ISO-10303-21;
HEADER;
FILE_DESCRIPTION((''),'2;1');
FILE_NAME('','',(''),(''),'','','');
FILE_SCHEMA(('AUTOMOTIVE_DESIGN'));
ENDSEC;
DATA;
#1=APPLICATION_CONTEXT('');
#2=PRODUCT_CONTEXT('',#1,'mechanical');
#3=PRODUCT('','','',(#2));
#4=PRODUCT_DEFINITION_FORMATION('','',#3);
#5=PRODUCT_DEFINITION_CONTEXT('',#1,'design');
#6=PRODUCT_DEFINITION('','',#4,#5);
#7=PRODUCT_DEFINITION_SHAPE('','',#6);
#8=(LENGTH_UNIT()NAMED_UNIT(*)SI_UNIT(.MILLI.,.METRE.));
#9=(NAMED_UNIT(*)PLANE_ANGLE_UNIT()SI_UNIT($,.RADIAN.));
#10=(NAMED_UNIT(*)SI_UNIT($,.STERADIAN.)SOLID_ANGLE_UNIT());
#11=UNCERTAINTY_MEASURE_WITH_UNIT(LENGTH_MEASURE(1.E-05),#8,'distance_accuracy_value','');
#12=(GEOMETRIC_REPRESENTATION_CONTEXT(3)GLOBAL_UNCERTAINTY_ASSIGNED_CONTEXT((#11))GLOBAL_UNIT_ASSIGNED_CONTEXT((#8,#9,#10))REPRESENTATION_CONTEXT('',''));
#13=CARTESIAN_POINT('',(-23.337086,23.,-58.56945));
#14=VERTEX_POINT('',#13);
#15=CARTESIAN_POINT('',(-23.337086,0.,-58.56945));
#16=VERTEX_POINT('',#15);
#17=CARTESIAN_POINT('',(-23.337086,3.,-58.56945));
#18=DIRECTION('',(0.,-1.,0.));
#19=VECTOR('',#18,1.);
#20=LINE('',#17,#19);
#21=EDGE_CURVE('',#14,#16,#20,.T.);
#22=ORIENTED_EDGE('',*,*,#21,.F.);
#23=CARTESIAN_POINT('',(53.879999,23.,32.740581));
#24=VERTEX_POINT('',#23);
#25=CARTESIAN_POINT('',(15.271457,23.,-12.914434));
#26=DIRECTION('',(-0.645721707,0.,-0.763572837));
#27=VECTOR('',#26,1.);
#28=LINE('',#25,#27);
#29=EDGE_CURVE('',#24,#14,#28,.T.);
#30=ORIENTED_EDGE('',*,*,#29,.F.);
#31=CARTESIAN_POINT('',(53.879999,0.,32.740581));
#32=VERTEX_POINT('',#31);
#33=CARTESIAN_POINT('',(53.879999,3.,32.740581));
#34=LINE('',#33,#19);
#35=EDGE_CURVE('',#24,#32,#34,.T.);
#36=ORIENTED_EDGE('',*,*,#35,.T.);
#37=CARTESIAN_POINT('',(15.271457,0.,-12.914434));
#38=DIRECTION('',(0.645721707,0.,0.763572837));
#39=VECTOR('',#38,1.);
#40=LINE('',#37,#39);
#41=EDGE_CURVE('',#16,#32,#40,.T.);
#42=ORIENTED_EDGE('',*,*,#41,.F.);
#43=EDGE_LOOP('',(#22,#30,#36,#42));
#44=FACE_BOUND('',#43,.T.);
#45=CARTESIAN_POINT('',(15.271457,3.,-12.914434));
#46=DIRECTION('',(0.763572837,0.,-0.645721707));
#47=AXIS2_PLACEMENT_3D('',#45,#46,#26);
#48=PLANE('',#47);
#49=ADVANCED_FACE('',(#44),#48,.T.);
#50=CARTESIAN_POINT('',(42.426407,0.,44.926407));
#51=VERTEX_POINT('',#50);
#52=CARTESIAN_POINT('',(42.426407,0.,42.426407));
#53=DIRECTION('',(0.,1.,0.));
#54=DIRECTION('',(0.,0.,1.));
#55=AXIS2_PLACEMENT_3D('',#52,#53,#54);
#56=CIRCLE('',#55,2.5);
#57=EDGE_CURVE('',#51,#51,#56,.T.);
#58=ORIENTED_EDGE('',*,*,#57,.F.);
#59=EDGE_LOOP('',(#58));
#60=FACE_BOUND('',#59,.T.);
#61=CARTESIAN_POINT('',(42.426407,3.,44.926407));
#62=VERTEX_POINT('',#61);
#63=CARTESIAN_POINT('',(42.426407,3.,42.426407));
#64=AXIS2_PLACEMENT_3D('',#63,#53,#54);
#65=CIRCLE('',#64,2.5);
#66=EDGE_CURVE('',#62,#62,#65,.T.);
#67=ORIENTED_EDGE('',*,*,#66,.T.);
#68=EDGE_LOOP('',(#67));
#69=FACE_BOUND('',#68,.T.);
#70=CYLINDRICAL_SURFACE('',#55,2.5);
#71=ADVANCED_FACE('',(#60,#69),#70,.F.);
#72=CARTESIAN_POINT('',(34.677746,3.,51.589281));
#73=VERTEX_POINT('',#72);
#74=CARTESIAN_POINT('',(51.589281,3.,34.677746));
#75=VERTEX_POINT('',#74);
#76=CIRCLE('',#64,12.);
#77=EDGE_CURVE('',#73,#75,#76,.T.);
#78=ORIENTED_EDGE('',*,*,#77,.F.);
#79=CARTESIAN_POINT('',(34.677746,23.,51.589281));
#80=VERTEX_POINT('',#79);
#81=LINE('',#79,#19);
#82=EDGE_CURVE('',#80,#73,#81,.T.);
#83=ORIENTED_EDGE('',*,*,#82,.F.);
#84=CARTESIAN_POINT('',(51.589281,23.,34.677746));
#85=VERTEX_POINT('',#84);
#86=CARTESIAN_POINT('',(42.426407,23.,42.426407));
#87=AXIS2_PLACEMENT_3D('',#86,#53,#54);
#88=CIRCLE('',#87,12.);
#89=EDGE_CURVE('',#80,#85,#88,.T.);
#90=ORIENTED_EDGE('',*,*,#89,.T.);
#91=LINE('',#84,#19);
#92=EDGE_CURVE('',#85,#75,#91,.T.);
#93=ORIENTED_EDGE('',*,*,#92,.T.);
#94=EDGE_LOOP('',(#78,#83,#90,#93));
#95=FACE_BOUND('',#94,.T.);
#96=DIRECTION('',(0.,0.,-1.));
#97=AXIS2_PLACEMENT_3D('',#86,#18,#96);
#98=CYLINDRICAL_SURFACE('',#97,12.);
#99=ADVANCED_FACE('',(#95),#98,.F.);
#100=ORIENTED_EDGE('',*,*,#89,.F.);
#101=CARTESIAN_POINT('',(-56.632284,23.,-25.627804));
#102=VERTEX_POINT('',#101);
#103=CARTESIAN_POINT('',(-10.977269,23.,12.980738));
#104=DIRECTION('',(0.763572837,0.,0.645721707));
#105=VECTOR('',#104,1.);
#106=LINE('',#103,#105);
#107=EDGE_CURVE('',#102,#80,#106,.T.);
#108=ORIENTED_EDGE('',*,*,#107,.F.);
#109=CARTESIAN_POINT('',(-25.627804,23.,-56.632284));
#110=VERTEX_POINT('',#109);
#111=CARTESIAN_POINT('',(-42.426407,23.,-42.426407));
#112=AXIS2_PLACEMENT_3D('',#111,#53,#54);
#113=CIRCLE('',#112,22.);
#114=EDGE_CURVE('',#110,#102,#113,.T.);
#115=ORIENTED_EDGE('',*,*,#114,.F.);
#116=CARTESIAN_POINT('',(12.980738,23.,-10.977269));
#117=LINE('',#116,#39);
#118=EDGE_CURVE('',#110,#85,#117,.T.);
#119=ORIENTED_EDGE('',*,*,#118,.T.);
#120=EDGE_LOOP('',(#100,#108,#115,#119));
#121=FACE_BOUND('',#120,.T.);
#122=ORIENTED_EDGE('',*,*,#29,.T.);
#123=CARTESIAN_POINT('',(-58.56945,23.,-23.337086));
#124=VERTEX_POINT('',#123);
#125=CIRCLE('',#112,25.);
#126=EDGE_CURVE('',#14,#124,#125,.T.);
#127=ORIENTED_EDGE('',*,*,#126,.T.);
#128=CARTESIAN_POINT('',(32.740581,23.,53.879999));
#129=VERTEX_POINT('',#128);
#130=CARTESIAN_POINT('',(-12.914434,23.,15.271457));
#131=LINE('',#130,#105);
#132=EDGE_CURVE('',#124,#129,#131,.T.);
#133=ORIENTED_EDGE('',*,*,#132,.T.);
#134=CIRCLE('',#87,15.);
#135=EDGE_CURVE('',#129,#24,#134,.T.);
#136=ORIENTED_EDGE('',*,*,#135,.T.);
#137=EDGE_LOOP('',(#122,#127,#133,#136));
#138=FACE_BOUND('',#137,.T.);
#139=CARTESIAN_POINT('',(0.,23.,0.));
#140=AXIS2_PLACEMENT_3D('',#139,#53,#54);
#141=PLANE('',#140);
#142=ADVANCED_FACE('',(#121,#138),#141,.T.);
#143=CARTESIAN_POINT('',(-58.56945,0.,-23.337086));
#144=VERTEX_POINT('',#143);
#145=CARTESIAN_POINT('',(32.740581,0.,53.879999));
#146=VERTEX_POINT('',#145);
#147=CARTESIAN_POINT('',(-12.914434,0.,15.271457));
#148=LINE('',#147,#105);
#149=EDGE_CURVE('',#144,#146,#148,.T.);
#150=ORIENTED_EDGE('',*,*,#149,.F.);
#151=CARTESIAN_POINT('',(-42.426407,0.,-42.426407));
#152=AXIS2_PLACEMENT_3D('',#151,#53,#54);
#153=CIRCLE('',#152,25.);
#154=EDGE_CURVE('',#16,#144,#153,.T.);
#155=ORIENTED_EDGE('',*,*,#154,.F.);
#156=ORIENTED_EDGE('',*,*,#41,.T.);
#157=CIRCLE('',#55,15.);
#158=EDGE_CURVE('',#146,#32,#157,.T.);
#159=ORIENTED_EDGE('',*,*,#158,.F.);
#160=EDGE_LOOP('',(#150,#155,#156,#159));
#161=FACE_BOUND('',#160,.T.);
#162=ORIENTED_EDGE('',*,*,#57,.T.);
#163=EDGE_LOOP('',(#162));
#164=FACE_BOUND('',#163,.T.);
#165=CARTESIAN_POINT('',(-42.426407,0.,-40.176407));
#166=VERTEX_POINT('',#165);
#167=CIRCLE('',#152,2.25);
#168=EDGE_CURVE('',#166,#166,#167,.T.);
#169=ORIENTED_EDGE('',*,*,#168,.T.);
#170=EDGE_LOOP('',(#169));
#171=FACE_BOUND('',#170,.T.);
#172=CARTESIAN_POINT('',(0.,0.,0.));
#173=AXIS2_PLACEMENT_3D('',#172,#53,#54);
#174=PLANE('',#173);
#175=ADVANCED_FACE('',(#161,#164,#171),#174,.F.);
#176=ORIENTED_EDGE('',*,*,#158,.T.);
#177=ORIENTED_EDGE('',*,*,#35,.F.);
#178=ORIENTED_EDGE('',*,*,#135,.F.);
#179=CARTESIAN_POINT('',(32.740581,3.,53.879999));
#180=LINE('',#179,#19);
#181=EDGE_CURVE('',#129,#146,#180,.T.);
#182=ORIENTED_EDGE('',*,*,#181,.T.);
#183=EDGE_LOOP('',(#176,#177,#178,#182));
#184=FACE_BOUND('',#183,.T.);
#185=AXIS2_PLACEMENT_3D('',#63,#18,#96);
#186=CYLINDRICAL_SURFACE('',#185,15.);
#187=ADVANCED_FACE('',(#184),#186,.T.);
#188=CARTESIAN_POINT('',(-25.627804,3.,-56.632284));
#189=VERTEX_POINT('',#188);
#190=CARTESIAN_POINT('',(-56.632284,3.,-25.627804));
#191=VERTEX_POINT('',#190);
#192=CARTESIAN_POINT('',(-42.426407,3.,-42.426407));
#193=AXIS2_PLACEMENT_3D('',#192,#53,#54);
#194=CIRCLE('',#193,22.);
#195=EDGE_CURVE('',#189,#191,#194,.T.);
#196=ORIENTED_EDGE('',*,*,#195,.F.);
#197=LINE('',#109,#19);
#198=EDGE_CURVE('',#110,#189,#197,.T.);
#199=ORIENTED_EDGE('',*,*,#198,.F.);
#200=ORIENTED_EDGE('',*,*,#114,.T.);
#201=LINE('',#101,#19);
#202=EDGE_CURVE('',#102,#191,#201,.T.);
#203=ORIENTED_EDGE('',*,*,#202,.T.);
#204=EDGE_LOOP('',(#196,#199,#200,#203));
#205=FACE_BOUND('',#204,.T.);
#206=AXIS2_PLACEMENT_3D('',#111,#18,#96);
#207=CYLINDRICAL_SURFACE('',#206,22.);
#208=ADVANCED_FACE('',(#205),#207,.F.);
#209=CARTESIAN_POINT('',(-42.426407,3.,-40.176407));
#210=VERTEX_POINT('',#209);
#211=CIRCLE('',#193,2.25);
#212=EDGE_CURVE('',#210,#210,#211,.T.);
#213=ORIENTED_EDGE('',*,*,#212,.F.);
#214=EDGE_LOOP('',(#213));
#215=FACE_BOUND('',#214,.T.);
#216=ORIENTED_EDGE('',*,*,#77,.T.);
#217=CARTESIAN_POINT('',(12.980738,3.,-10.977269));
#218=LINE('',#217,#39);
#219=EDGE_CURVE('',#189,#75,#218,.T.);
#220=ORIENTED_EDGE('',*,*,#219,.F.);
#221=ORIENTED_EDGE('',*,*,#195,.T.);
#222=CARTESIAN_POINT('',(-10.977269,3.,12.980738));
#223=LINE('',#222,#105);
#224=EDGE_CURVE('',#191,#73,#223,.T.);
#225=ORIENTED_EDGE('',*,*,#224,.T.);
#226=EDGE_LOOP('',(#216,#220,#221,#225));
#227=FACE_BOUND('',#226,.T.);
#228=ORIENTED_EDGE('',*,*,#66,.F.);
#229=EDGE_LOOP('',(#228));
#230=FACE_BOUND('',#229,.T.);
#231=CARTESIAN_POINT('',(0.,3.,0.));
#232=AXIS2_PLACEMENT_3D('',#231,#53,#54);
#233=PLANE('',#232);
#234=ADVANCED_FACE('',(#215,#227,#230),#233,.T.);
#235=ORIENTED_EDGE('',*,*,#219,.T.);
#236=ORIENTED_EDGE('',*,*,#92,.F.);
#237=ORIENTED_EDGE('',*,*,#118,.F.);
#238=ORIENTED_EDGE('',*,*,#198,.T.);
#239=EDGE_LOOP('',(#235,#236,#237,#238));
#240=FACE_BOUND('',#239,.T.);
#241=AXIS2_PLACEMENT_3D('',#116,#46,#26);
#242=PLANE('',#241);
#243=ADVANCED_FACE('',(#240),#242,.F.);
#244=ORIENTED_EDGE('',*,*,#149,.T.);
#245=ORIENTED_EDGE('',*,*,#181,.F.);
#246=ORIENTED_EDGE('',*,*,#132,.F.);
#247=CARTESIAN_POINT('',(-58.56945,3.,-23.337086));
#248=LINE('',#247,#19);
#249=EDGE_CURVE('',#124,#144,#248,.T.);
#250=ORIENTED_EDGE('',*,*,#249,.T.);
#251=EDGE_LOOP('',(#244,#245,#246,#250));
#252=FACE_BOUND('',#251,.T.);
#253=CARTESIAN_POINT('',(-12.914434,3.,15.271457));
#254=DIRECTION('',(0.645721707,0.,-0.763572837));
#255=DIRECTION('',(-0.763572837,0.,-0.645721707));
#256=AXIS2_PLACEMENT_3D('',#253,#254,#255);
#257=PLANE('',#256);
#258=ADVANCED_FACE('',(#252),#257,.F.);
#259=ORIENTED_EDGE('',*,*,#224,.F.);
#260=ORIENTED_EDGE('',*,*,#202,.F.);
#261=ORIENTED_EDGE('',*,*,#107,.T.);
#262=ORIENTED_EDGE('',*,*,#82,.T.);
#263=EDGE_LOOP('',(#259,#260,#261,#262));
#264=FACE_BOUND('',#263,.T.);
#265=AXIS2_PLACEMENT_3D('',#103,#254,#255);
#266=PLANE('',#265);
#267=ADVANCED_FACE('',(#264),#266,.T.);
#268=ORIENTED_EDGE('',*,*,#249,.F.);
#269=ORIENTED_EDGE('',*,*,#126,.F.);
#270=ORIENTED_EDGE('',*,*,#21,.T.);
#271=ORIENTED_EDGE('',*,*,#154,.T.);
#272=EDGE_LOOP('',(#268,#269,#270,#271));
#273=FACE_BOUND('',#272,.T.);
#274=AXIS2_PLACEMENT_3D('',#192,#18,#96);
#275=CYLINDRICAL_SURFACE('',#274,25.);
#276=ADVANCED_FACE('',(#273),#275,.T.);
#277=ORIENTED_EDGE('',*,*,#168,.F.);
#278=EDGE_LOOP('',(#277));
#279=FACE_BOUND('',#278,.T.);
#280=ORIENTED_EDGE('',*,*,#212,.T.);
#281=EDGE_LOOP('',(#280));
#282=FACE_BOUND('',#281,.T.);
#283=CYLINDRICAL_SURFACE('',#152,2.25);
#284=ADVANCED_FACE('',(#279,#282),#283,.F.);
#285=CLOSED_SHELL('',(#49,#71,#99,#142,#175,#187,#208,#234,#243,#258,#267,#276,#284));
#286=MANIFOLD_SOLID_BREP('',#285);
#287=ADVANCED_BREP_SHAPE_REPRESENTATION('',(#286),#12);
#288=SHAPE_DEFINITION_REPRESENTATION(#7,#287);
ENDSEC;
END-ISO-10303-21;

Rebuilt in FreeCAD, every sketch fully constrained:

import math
import FreeCAD as App
import Part
import Sketcher

V = App.Vector
Q = App.Units.Quantity

doc = App.newDocument("Part")
params = doc.addObject("Spreadsheet::Sheet", "Params")
for row, (alias, value) in enumerate([
    ("sketch1_radius", "15 mm"),
    ("sketch1_radius2", "25 mm"),
    ("pad1_length", "3 mm"),
    ("sketch2_radius", "25 mm"),
    ("sketch2_radius2", "15 mm"),
    ("sketch2_radius3", "22 mm"),
    ("pad2_length", "20 mm"),
    ("sketch3_diameter", "5 mm"),
    ("sketch3_diameter2", "4.5 mm"),
], start=1):
    params.set(f"A{row}", alias)
    params.set(f"B{row}", "=" + value)
    params.setAlias(f"B{row}", alias)

body = doc.addObject("PartDesign::Body", "Body")

# Sketch on XZ plane
sketch1 = doc.addObject("Sketcher::SketchObject", "Sketch")
body.addObject(sketch1)
sketch1.AttachmentSupport = (doc.XZ_Plane, [""])
sketch1.MapMode = "FlatFace"
sketch1.addGeometry(Part.LineSegment(V(-59, -23, 0), V(33, 54, 0)), False)
sketch1.addGeometry(Part.ArcOfCircle(Part.Circle(V(42, 42, 0), V(0, 0, 1), 15), math.radians(-40), math.radians(130)), False)
sketch1.addGeometry(Part.LineSegment(V(54, 33, 0), V(-23, -59, 0)), False)
sketch1.addGeometry(Part.ArcOfCircle(Part.Circle(V(-42, -42, 0), V(0, 0, 1), 25), math.radians(130), math.radians(320)), False)
sketch1.addConstraint(Sketcher.Constraint("Tangent", 0, 2, 1, 2))
sketch1.addConstraint(Sketcher.Constraint("Tangent", 1, 1, 2, 1))
sketch1.addConstraint(Sketcher.Constraint("Tangent", 2, 2, 3, 2))
sketch1.addConstraint(Sketcher.Constraint("Tangent", 3, 1, 0, 1))
sketch1.addConstraint(Sketcher.Constraint("Symmetric", 1, 3, 3, 3, -1, 1))
sketch1.addConstraint(Sketcher.Constraint("Radius", 1, Q("15 mm")))
sketch1.addConstraint(Sketcher.Constraint("Radius", 3, Q("25 mm")))
sketch1.addConstraint(Sketcher.Constraint("DistanceY", -1, 1, 0, 2, Q("53.879999 mm")))
sketch1.addConstraint(Sketcher.Constraint("DistanceX", -1, 1, 1, 1, Q("53.879999 mm")))
sketch1.setExpression("Constraints[5]", "Params.sketch1_radius")
sketch1.setExpression("Constraints[6]", "Params.sketch1_radius2")
pad1 = doc.addObject("PartDesign::Pad", "Pad")
body.addObject(pad1)
pad1.Profile = sketch1
pad1.setExpression("Length", "Params.pad1_length")
pad1.Reversed = True

# Sketch on XZ plane
sketch2 = doc.addObject("Sketcher::SketchObject", "Sketch001")
body.addObject(sketch2)
sketch2.AttachmentSupport = (doc.XZ_Plane, [""])
sketch2.MapMode = "FlatFace"
sketch2.AttachmentOffset = App.Placement(V(0, 0, -3), App.Rotation())
sketch2.addGeometry(Part.ArcOfCircle(Part.Circle(V(-42, -42, 0), V(0, 0, 1), 25), math.radians(130), math.radians(320)), False)
sketch2.addGeometry(Part.LineSegment(V(-59, -23, 0), V(33, 54, 0)), False)
sketch2.addGeometry(Part.ArcOfCircle(Part.Circle(V(42, 42, 0), V(0, 0, 1), 15), math.radians(-40), math.radians(130)), False)
sketch2.addGeometry(Part.LineSegment(V(54, 33, 0), V(-23, -59, 0)), False)
sketch2.addGeometry(Part.LineSegment(V(35, 52, 0), V(-57, -26, 0)), False)
sketch2.addGeometry(Part.ArcOfCircle(Part.Circle(V(-42, -42, 0), V(0, 0, 1), 22), math.radians(130), math.radians(320)), False)
sketch2.addGeometry(Part.LineSegment(V(-26, -57, 0), V(52, 35, 0)), False)
sketch2.addGeometry(Part.ArcOfCircle(Part.Circle(V(42, 42, 0), V(0, 0, 1), 12), math.radians(-40), math.radians(130)), False)
sketch2.addConstraint(Sketcher.Constraint("Tangent", 0, 1, 1, 1))
sketch2.addConstraint(Sketcher.Constraint("Tangent", 1, 2, 2, 2))
sketch2.addConstraint(Sketcher.Constraint("Tangent", 2, 1, 3, 1))
sketch2.addConstraint(Sketcher.Constraint("Tangent", 3, 2, 0, 2))
sketch2.addConstraint(Sketcher.Constraint("Tangent", 4, 2, 5, 1))
sketch2.addConstraint(Sketcher.Constraint("Tangent", 5, 2, 6, 1))
sketch2.addConstraint(Sketcher.Constraint("Tangent", 6, 2, 7, 1))
sketch2.addConstraint(Sketcher.Constraint("Tangent", 7, 2, 4, 1))
sketch2.addConstraint(Sketcher.Constraint("Coincident", 5, 3, 0, 3))
sketch2.addConstraint(Sketcher.Constraint("Coincident", 7, 3, 2, 3))
sketch2.addConstraint(Sketcher.Constraint("Symmetric", 0, 3, 2, 3, -1, 1))
sketch2.addConstraint(Sketcher.Constraint("Parallel", 1, 4))
sketch2.addConstraint(Sketcher.Constraint("Radius", 0, Q("25 mm")))
sketch2.addConstraint(Sketcher.Constraint("Radius", 2, Q("15 mm")))
sketch2.addConstraint(Sketcher.Constraint("Radius", 5, Q("22 mm")))
sketch2.addConstraint(Sketcher.Constraint("DistanceY", -1, 1, 1, 2, Q("53.879999 mm")))
sketch2.addConstraint(Sketcher.Constraint("DistanceX", -1, 1, 2, 1, Q("53.879999 mm")))
sketch2.setExpression("Constraints[12]", "Params.sketch2_radius")
sketch2.setExpression("Constraints[13]", "Params.sketch2_radius2")
sketch2.setExpression("Constraints[14]", "Params.sketch2_radius3")
pad2 = doc.addObject("PartDesign::Pad", "Pad001")
body.addObject(pad2)
pad2.Profile = sketch2
pad2.setExpression("Length", "Params.pad2_length")
pad2.Reversed = True

# Sketch on XZ plane
sketch3 = doc.addObject("Sketcher::SketchObject", "Sketch002")
body.addObject(sketch3)
sketch3.AttachmentSupport = (doc.XZ_Plane, [""])
sketch3.MapMode = "FlatFace"
sketch3.AttachmentOffset = App.Placement(V(0, 0, -3), App.Rotation())
sketch3.addGeometry(Part.Circle(V(-42.4, -42.4, 0), V(0, 0, 1), 2.2), False)
sketch3.addGeometry(Part.Circle(V(42.4, 42.4, 0), V(0, 0, 1), 2.5), False)
sketch3.addConstraint(Sketcher.Constraint("Symmetric", 0, 3, 1, 3, -1, 1))
sketch3.addConstraint(Sketcher.Constraint("Diameter", 1, Q("5 mm")))
sketch3.addConstraint(Sketcher.Constraint("Diameter", 0, Q("4.5 mm")))
sketch3.addConstraint(Sketcher.Constraint("DistanceX", 0, 3, -1, 1, Q("42.426407 mm")))
sketch3.addConstraint(Sketcher.Constraint("DistanceY", 0, 3, -1, 1, Q("42.426407 mm")))
sketch3.setExpression("Constraints[1]", "Params.sketch3_diameter")
sketch3.setExpression("Constraints[2]", "Params.sketch3_diameter2")
pocket1 = doc.addObject("PartDesign::Pocket", "Pocket")
body.addObject(pocket1)
pocket1.Profile = sketch3
pocket1.Type = "ThroughAll"
pocket1.Reversed = True

doc.recompute()
